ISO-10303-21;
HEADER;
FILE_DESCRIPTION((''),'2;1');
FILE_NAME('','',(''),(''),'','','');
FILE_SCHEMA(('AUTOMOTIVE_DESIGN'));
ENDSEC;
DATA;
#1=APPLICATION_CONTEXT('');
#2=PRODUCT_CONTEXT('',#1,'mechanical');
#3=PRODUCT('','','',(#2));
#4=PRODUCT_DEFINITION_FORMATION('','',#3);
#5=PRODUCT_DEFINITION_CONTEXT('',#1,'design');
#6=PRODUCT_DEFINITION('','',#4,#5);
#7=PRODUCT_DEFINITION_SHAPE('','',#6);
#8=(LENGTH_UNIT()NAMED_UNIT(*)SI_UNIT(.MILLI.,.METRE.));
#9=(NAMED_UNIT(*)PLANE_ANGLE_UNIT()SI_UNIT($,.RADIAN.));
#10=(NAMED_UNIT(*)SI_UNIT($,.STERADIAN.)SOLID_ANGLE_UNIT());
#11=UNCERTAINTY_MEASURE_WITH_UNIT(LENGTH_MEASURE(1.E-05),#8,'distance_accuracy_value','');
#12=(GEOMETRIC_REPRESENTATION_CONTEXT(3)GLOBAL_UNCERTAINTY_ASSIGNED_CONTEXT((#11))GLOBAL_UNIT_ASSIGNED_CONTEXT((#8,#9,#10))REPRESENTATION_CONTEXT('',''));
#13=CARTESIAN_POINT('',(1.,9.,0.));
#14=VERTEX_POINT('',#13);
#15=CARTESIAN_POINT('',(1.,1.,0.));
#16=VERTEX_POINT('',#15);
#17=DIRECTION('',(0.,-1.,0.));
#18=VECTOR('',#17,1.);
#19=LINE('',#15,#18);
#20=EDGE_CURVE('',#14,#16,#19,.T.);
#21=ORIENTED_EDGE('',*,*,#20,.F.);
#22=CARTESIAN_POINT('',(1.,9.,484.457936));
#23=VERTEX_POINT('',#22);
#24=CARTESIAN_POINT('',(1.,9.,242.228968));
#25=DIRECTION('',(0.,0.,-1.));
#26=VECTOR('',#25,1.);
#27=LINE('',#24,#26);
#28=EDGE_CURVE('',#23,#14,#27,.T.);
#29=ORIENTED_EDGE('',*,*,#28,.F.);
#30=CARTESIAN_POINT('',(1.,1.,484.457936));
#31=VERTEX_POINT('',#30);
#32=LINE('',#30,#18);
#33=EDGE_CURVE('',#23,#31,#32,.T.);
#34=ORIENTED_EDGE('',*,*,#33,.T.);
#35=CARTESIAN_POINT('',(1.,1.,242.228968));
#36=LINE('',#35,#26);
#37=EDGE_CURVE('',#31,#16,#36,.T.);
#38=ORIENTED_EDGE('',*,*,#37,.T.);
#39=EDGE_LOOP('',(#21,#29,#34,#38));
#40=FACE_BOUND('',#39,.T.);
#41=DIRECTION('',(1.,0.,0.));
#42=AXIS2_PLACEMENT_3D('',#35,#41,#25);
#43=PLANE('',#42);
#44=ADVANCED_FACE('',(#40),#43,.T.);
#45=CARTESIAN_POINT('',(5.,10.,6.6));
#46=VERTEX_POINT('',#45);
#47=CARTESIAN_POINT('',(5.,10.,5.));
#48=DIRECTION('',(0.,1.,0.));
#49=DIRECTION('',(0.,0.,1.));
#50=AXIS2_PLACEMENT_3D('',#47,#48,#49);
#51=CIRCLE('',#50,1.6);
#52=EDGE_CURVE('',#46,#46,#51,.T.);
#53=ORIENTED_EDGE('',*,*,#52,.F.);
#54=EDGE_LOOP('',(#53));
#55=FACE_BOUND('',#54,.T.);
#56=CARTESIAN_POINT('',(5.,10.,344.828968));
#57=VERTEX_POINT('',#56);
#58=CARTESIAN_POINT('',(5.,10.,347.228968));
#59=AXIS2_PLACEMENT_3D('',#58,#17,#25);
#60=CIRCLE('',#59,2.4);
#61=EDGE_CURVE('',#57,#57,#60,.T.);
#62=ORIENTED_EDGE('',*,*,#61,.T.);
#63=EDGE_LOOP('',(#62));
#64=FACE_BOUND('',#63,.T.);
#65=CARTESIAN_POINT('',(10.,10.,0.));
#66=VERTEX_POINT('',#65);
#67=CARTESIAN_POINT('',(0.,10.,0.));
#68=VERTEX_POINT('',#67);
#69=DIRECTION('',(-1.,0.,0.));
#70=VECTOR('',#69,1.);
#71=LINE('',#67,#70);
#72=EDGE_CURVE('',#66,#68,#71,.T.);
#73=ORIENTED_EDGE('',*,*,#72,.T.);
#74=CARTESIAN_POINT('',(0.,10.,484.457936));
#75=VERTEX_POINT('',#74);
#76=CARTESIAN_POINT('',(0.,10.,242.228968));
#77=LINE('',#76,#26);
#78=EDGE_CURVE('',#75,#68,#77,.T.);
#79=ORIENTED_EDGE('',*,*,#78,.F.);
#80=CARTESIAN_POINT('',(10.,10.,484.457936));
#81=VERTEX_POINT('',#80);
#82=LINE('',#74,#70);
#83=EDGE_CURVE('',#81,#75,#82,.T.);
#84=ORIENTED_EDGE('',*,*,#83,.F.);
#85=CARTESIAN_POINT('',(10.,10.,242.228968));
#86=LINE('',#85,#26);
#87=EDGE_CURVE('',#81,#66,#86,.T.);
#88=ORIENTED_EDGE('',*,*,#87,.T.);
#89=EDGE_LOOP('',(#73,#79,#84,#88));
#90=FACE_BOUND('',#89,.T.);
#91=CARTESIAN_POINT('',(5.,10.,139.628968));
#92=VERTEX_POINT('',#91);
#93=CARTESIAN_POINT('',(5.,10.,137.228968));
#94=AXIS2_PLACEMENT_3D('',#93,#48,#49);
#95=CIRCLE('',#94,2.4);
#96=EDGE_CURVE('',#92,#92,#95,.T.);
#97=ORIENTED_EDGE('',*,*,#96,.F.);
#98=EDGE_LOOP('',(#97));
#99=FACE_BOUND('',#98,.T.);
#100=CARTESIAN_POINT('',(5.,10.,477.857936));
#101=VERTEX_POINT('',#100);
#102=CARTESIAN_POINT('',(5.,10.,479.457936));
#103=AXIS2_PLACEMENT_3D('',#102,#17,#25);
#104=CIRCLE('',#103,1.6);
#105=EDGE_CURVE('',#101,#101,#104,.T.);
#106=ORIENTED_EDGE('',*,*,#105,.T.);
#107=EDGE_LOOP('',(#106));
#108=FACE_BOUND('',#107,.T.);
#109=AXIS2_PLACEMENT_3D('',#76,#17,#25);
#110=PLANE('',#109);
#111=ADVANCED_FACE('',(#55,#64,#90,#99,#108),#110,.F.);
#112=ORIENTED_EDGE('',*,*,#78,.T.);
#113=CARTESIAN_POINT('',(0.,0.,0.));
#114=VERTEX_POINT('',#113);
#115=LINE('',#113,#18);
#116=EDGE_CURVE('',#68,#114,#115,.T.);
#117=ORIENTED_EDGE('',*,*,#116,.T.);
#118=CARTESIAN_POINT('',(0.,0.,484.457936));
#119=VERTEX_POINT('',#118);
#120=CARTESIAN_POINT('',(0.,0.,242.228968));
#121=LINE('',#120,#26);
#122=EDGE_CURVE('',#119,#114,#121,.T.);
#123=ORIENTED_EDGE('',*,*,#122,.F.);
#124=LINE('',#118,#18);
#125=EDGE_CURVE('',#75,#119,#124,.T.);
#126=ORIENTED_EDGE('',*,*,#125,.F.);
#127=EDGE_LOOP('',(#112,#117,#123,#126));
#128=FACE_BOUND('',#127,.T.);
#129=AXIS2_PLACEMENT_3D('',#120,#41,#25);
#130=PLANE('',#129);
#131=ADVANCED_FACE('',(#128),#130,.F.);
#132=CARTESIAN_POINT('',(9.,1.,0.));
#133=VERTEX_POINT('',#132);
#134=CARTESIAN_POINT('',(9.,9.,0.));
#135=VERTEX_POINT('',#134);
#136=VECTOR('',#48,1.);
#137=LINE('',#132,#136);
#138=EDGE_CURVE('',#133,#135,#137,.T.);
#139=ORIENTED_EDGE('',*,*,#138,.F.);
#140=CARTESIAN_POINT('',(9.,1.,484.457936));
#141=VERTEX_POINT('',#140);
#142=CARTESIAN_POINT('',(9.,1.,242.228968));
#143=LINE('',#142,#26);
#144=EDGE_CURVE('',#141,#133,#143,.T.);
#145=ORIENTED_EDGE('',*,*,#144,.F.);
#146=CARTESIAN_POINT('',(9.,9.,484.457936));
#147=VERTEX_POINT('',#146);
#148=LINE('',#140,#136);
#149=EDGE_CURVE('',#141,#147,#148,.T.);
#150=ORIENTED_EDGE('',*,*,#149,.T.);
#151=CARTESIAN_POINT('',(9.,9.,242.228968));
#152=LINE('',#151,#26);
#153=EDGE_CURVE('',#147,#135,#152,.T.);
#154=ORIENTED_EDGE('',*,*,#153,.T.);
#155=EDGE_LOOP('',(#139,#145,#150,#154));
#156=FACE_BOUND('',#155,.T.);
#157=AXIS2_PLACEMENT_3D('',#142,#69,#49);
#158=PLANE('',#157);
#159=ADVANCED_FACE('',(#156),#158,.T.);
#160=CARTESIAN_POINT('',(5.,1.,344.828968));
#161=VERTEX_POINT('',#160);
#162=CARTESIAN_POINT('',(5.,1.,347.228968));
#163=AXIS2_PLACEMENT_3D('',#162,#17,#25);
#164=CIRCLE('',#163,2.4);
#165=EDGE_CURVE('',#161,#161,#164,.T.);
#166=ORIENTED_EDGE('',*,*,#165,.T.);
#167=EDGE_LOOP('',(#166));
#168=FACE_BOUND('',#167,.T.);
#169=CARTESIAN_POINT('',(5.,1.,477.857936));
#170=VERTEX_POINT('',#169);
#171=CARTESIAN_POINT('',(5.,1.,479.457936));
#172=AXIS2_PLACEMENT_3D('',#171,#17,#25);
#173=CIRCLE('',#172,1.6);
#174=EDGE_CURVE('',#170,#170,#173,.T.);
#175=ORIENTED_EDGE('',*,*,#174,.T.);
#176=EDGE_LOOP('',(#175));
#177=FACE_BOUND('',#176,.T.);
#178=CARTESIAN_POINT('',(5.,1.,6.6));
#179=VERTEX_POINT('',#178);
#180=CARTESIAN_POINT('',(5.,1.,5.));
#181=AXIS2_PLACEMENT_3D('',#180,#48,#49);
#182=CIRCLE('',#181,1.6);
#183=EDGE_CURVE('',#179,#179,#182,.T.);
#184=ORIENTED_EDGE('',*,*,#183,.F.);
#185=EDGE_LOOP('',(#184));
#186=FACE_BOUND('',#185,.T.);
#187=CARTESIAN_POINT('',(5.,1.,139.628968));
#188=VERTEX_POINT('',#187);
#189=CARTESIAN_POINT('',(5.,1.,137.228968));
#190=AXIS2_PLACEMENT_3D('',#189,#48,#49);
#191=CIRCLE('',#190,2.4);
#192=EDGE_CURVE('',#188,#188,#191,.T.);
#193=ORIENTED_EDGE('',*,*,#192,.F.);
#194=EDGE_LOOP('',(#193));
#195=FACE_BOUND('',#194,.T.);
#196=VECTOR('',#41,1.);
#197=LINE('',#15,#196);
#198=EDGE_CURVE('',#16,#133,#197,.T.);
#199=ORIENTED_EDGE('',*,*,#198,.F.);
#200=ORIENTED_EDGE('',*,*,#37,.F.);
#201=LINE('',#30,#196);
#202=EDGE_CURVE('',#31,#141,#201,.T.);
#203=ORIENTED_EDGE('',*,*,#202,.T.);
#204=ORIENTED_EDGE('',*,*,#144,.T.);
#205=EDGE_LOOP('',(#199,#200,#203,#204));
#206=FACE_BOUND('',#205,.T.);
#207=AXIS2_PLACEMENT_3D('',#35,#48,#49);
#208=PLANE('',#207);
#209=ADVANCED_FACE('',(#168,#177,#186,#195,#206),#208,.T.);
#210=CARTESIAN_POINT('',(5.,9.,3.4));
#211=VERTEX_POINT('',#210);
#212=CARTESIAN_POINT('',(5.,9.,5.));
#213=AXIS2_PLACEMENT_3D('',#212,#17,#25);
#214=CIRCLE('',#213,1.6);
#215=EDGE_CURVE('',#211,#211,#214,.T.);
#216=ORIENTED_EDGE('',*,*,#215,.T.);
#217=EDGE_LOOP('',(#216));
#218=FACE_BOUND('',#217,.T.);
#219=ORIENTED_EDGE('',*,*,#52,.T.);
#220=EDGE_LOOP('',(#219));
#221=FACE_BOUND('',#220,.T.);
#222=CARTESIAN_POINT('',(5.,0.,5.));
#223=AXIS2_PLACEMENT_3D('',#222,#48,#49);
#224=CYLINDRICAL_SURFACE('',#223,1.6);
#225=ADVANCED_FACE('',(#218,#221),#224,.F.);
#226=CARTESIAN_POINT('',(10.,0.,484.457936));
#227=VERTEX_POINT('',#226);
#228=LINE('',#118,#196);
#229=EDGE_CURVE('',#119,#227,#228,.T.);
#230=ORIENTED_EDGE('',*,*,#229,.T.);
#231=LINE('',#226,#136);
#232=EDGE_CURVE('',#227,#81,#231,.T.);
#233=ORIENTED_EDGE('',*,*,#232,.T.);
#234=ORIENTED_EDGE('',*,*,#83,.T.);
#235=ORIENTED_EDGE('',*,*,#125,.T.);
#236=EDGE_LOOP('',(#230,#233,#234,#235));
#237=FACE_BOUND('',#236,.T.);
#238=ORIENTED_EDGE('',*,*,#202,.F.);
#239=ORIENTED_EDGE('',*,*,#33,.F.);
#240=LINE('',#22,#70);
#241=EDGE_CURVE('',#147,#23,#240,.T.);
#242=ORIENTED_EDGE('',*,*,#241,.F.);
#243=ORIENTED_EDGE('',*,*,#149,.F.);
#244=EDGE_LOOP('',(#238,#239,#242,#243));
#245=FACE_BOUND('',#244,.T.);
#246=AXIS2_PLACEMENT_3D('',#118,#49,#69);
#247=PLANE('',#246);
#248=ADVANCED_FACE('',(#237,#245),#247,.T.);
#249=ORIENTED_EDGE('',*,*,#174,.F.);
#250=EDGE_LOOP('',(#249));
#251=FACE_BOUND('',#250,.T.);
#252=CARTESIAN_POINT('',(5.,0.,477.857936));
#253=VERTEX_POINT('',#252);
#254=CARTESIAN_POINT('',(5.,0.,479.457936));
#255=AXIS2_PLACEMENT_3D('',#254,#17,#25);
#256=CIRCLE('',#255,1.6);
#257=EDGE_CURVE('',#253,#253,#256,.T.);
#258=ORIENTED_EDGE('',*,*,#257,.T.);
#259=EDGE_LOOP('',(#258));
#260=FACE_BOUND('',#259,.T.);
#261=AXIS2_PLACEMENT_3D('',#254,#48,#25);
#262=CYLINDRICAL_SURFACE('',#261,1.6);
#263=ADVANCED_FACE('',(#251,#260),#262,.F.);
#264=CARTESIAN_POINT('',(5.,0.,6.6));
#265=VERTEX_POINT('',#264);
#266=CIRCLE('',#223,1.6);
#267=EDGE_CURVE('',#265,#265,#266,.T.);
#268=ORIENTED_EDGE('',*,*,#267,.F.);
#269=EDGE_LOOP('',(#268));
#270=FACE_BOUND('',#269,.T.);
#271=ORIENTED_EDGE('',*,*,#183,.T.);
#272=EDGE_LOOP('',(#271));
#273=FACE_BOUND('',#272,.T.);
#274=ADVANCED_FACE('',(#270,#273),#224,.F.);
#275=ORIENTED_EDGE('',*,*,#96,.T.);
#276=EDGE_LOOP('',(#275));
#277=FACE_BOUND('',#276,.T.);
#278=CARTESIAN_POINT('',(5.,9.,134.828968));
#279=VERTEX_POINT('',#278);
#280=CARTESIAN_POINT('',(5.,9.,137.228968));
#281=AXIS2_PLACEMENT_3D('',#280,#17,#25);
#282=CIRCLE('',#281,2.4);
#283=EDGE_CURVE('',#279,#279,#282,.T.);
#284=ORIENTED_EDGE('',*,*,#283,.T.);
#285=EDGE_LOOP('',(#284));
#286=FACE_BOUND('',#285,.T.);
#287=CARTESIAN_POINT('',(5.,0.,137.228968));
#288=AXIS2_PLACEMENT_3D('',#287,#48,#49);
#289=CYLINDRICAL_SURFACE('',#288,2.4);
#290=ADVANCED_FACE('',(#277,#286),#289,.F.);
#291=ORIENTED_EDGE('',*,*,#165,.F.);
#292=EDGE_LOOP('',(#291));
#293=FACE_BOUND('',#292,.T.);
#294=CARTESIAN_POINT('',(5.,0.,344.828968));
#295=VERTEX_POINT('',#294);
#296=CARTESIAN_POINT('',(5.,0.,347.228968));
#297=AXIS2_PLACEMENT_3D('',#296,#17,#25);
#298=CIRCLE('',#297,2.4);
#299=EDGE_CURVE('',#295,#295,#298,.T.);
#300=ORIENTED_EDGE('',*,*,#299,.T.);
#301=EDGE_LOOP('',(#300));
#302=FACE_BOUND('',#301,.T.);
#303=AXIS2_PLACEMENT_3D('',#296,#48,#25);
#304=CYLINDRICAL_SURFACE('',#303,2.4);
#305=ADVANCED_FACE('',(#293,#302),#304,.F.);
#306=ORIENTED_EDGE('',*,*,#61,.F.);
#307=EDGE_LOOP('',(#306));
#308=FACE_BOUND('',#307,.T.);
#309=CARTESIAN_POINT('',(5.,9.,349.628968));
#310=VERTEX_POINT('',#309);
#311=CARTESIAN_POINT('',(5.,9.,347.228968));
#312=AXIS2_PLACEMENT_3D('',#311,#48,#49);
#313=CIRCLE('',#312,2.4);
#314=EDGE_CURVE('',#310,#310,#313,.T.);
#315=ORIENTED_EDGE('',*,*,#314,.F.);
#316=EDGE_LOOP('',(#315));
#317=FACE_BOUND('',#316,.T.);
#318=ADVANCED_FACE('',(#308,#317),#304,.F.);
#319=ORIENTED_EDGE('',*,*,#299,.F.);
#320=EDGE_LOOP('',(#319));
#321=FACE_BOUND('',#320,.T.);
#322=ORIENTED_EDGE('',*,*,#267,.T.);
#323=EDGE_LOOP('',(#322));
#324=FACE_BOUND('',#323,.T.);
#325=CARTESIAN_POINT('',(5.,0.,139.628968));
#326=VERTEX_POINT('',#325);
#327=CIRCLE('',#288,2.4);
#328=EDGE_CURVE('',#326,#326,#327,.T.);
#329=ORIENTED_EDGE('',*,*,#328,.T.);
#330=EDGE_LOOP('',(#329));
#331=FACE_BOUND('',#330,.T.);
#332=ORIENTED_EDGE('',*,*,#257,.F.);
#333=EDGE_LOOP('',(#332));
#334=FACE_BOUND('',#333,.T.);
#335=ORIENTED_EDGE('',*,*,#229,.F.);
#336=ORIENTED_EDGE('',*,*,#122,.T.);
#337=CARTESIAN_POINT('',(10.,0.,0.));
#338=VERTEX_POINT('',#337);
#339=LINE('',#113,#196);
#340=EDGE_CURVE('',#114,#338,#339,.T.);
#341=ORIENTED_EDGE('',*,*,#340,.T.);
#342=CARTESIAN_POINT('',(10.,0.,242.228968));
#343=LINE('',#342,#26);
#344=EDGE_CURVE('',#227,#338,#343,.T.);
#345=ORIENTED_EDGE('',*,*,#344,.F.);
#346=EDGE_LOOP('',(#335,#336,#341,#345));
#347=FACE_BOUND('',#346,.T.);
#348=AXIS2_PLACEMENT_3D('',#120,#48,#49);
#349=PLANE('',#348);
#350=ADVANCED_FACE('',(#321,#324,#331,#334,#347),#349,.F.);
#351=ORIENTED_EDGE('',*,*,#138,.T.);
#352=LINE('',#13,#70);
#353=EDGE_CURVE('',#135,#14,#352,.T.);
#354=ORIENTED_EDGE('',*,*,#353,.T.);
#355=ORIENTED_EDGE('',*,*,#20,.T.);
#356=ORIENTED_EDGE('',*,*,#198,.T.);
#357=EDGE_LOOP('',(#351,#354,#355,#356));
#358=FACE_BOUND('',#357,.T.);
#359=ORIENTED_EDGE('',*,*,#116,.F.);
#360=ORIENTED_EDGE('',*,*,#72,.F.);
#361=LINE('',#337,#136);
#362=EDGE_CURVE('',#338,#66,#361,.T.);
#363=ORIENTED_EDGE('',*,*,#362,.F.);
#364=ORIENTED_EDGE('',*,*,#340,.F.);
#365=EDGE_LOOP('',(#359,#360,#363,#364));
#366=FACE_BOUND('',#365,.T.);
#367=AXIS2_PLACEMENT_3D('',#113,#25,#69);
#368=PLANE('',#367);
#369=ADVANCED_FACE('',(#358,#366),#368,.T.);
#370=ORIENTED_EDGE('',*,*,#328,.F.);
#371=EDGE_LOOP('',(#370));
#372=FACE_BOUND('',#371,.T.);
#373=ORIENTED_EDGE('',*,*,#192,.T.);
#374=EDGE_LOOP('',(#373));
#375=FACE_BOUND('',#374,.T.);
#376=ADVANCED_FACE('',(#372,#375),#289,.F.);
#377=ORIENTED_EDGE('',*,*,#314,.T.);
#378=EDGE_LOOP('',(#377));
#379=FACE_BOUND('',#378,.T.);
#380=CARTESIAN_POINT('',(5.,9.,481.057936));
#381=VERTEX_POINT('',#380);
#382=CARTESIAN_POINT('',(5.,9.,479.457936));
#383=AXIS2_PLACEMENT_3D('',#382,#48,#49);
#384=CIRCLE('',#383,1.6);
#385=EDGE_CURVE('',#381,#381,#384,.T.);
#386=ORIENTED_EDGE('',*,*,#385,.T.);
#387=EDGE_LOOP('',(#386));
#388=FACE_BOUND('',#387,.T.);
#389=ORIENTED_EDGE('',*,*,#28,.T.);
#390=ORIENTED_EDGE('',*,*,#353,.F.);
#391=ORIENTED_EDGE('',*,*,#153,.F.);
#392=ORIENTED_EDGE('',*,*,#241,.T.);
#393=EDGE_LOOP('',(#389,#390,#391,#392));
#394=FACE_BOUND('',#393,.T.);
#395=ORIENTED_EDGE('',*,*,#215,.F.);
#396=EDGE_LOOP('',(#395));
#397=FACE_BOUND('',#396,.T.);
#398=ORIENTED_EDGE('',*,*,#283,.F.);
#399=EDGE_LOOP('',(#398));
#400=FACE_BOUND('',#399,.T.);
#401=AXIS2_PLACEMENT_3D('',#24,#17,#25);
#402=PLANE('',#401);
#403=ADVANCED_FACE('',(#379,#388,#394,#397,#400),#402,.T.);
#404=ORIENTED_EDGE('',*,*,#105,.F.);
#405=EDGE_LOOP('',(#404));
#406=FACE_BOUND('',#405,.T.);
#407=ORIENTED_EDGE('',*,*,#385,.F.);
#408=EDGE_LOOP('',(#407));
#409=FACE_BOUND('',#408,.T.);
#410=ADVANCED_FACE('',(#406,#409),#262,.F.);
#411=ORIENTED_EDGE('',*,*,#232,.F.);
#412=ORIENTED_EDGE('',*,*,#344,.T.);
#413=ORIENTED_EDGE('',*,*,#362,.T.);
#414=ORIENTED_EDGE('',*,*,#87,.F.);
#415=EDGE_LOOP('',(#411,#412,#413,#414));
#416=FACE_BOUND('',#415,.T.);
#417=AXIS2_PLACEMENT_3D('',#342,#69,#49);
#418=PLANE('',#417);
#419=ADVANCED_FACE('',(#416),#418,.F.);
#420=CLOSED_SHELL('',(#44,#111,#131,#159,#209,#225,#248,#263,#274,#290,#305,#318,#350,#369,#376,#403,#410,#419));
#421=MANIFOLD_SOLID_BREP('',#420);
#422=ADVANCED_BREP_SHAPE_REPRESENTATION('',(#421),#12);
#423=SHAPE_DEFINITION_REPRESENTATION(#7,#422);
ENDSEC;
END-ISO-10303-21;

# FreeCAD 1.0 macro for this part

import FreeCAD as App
import Part
import Sketcher


def add_polygon(sketch, points):
    """Adds a closed chain of lines whose ends are joined by coincident constraints."""
    first, n = sketch.GeometryCount, len(points)
    for a, b in zip(points, points[1:] + points[:1]):
        sketch.addGeometry(Part.LineSegment(App.Vector(*a, 0), App.Vector(*b, 0)), False)
    for i in range(n):
        sketch.addConstraint(Sketcher.Constraint("Coincident", first + i, 2, first + (i + 1) % n, 1))

doc = App.newDocument("Part")
body = doc.addObject("PartDesign::Body", "Body")

sketch1 = body.newObject("Sketcher::SketchObject", "Sketch")
sketch1.AttachmentSupport = (doc.getObject("XY_Plane"), [""])
sketch1.MapMode = "FlatFace"
add_polygon(sketch1, [(0, 10), (0, 0), (10, 0), (10, 10)])
add_polygon(sketch1, [(9, 1), (1, 1), (1, 9), (9, 9)])
sketch1.addConstraint([
    Sketcher.Constraint("Vertical", 0),
    Sketcher.Constraint("Horizontal", 1),
    Sketcher.Constraint("Vertical", 2),
    Sketcher.Constraint("Horizontal", 3),
    Sketcher.Constraint("Horizontal", 4),
    Sketcher.Constraint("Vertical", 5),
    Sketcher.Constraint("Horizontal", 6),
    Sketcher.Constraint("Vertical", 7),
    Sketcher.Constraint("Coincident", 0, 2, -1, 1),
    Sketcher.Constraint("Equal", 3, 0),
    Sketcher.Constraint("Equal", 6, 5),
    Sketcher.Constraint("DistanceX", 1, 1, 1, 2, 10.0),
    Sketcher.Constraint("DistanceX", 4, 2, 4, 1, 8.0),
    Sketcher.Constraint("DistanceX", -1, 1, 4, 2, 1.0),
    Sketcher.Constraint("DistanceY", -1, 1, 4, 2, 1.0),
])
pad1 = body.newObject("PartDesign::Pad", "Pad")
pad1.Profile = sketch1
pad1.Length = 242.228968

sketch2 = body.newObject("Sketcher::SketchObject", "Sketch001")
sketch2.AttachmentSupport = (doc.getObject("XZ_Plane"), [""])
sketch2.MapMode = "FlatFace"
sketch2.AttachmentOffset = App.Placement(App.Vector(0, 0, -10), App.Rotation())
sketch2.addGeometry([
    Part.Circle(App.Vector(5, 137.2, 0), App.Vector(0, 0, 1), 2.4),
    Part.Circle(App.Vector(5, 5, 0), App.Vector(0, 0, 1), 1.6),
], False)
sketch2.addConstraint([
    Sketcher.Constraint("Vertical", 0, 3, 1, 3),
    Sketcher.Constraint("Diameter", 0, 4.8),
    Sketcher.Constraint("Diameter", 1, 3.2),
    Sketcher.Constraint("DistanceX", -1, 1, 0, 3, 5.0),
    Sketcher.Constraint("DistanceY", -1, 1, 1, 3, 5.0),
    Sketcher.Constraint("DistanceY", -1, 1, 0, 3, 137.228968),
])
pocket1 = body.newObject("PartDesign::Pocket", "Pocket")
pocket1.Profile = sketch2
pocket1.Type = "ThroughAll"
pocket1.Reversed = True
body2 = doc.addObject("PartDesign::Body", "Body001")
doc.recompute()

body2.BaseFeature = body
doc.recompute()

mirroring = doc.addObject("Part::Mirroring", "Mirroring")
mirroring.Source = body
mirroring.Base = App.Vector(0, 0, 242.228968)
mirroring.Normal = App.Vector(0, 0, -1)
body3 = doc.addObject("PartDesign::Body", "Body002")
body3.BaseFeature = mirroring
boolean = body2.newObject("PartDesign::Boolean", "Boolean")
boolean.Type = "Fuse"
boolean.addObjects([body3])
doc.recompute()
mirroring.Visibility = False

doc.recompute()
